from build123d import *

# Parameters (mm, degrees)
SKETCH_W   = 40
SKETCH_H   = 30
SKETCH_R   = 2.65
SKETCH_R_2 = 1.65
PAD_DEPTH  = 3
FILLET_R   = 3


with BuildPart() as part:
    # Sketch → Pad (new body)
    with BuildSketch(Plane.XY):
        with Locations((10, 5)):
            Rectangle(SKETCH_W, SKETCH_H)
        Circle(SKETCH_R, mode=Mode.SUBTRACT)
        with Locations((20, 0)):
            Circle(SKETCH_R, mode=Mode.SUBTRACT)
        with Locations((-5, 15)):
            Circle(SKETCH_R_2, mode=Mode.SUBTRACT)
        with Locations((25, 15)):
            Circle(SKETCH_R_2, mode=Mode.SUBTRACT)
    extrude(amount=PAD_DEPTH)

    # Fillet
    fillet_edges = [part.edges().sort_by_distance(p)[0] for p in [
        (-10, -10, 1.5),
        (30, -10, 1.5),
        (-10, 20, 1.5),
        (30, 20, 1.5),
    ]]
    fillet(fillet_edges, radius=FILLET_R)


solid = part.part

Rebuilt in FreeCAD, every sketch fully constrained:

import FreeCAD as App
import Part
import Sketcher
from FreeCAD import Vector


def edges_at(feature, points):
    """Names of the edges that pass closest to the given points."""
    edges = feature.Shape.Edges
    near = lambda p: min(range(len(edges)), key=lambda i: edges[i].distToShape(Part.Vertex(*p))[0])
    return sorted({f"Edge{near(p) + 1}" for p in points})


def add_polygon(sketch, points):
    """Adds a closed chain of lines whose ends are joined by coincident constraints."""
    first, n = sketch.GeometryCount, len(points)
    for a, b in zip(points, points[1:] + points[:1]):
        sketch.addGeometry(Part.LineSegment(App.Vector(*a, 0), App.Vector(*b, 0)), False)
    for i in range(n):
        sketch.addConstraint(Sketcher.Constraint("Coincident", first + i, 2, first + (i + 1) % n, 1))

doc = App.newDocument("Part")
body = doc.addObject("PartDesign::Body", "Body")

sketch1 = body.newObject("Sketcher::SketchObject", "Sketch")
sketch1.AttachmentSupport = (doc.getObject("XY_Plane"), [""])
sketch1.MapMode = "FlatFace"
add_polygon(sketch1, [(-10, 20), (-10, -10), (30, -10), (30, 20)])
sketch1.addGeometry(Part.Circle(Vector(0, 0, 0), Vector(0, 0, 1), 2.6), False)
sketch1.addGeometry(Part.Circle(Vector(20, 0, 0), Vector(0, 0, 1), 2.6), False)
sketch1.addGeometry(Part.Circle(Vector(-5, 15, 0), Vector(0, 0, 1), 1.6), False)
sketch1.addGeometry(Part.Circle(Vector(25, 15, 0), Vector(0, 0, 1), 1.6), False)
sketch1.addConstraint(Sketcher.Constraint("Vertical", 0))
sketch1.addConstraint(Sketcher.Constraint("Horizontal", 1))
sketch1.addConstraint(Sketcher.Constraint("Vertical", 2))
sketch1.addConstraint(Sketcher.Constraint("Horizontal", 3))
sketch1.addConstraint(Sketcher.Constraint("Coincident", 4, 3, -1, 1))
sketch1.addConstraint(Sketcher.Constraint("Equal", 4, 5))
sketch1.addConstraint(Sketcher.Constraint("Equal", 6, 7))
sketch1.addConstraint(Sketcher.Constraint("PointOnObject", 5, 3, -1))
sketch1.addConstraint(Sketcher.Constraint("Horizontal", 6, 3, 7, 3))
sketch1.addConstraint(Sketcher.Constraint("Diameter", 4, 5.3))
sketch1.addConstraint(Sketcher.Constraint("Diameter", 6, 3.3))
sketch1.addConstraint(Sketcher.Constraint("DistanceX", 1, 1, 1, 2, 40.0))
sketch1.addConstraint(Sketcher.Constraint("DistanceY", 0, 2, 0, 1, 30.0))
sketch1.addConstraint(Sketcher.Constraint("DistanceX", -1, 1, 5, 3, 20.0))
sketch1.addConstraint(Sketcher.Constraint("DistanceX", 6, 3, -1, 1, 5.0))
sketch1.addConstraint(Sketcher.Constraint("DistanceY", -1, 1, 6, 3, 15.0))
sketch1.addConstraint(Sketcher.Constraint("DistanceX", -1, 1, 7, 3, 25.0))
sketch1.addConstraint(Sketcher.Constraint("DistanceX", 0, 2, -1, 1, 10.0))
sketch1.addConstraint(Sketcher.Constraint("DistanceY", 0, 2, -1, 1, 10.0))
pad1 = body.newObject("PartDesign::Pad", "Pad")
pad1.Profile = sketch1
pad1.Length = 3
doc.recompute()

fillet = body.newObject("PartDesign::Fillet", "Fillet")
fillet.Base = (pad1, edges_at(pad1, [
    (-10, -10, 1.5),
    (30, -10, 1.5),
    (-10, 20, 1.5),
    (30, 20, 1.5),
]))
fillet.Radius = 3

doc.recompute()
